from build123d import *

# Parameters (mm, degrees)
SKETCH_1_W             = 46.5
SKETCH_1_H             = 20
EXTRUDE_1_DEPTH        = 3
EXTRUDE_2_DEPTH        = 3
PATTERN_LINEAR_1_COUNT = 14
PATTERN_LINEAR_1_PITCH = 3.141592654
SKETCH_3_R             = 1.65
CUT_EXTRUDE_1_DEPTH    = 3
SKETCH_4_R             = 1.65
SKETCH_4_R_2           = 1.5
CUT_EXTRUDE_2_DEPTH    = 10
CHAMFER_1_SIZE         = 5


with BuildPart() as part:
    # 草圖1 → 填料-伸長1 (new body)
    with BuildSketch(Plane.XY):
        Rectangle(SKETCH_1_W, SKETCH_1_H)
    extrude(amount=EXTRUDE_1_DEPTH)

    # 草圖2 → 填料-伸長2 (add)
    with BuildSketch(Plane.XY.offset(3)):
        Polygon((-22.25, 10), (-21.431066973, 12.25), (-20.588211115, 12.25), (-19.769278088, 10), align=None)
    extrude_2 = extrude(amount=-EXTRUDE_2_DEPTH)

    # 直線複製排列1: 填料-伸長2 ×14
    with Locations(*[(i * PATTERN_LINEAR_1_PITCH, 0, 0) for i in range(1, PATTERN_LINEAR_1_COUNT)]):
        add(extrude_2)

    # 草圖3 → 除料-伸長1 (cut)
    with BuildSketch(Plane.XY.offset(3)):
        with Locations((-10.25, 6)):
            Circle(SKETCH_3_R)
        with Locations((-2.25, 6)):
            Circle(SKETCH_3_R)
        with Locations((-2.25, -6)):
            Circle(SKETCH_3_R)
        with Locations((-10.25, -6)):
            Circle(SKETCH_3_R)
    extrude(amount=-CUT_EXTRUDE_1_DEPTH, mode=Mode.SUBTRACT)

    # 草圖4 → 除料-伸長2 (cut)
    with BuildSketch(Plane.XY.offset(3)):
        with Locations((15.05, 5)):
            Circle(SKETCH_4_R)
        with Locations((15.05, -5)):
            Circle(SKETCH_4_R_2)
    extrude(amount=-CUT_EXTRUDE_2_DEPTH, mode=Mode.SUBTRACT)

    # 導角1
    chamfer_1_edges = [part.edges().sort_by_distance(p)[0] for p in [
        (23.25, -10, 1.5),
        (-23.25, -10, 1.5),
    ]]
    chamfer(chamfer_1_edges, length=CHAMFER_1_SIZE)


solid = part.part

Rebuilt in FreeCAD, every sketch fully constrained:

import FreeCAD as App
import Part
import Sketcher
Q = App.Units.Quantity


def edges_at(feature, points):
    """Names of the edges that pass closest to the given points."""
    edges = feature.Shape.Edges
    near = lambda p: min(range(len(edges)), key=lambda i: edges[i].distToShape(Part.Vertex(*p))[0])
    return sorted({f"Edge{near(p) + 1}" for p in points})


def add_polygon(sketch, points):
    """Adds a closed chain of lines whose ends are joined by coincident constraints."""
    first, n = sketch.GeometryCount, len(points)
    for a, b in zip(points, points[1:] + points[:1]):
        sketch.addGeometry(Part.LineSegment(App.Vector(*a, 0), App.Vector(*b, 0)), False)
    for i in range(n):
        sketch.addConstraint(Sketcher.Constraint("Coincident", first + i, 2, first + (i + 1) % n, 1))

doc = App.newDocument("Part")
body = doc.addObject("PartDesign::Body", "Body")

sketch1 = body.newObject("Sketcher::SketchObject", "Sketch")
sketch1.AttachmentSupport = (doc.getObject("XY_Plane"), [""])
sketch1.MapMode = "FlatFace"
add_polygon(sketch1, [(-23, 10), (-23, -10), (23, -10), (23, 10)])
sketch1.addConstraint([
    Sketcher.Constraint("Vertical", 0),
    Sketcher.Constraint("Horizontal", 1),
    Sketcher.Constraint("Vertical", 2),
    Sketcher.Constraint("Horizontal", 3),
    Sketcher.Constraint("Symmetric", 0, 2, 2, 2, -1, 1),
    Sketcher.Constraint("DistanceY", 0, 2, 0, 1, 20.0),
    Sketcher.Constraint("DistanceX", 1, 1, 1, 2, 46.5),
])
pad1 = body.newObject("PartDesign::Pad", "Pad")
pad1.Profile = sketch1
pad1.Length = 3

sketch2 = body.newObject("Sketcher::SketchObject", "Sketch001")
sketch2.AttachmentSupport = (doc.getObject("XY_Plane"), [""])
sketch2.MapMode = "FlatFace"
sketch2.AttachmentOffset = App.Placement(App.Vector(0, 0, 3), App.Rotation())
add_polygon(sketch2, [(-21.4, 12.2), (-22.2, 10), (-19.8, 10), (-20.6, 12.2)])
sketch2.addConstraint([
    Sketcher.Constraint("Horizontal", 1),
    Sketcher.Constraint("Horizontal", 3),
    Sketcher.Constraint("Equal", 0, 2),
    Sketcher.Constraint("Angle", 0, Q("-110 deg")),
    Sketcher.Constraint("DistanceY", -1, 1, 0, 2, 10.0),
    Sketcher.Constraint("DistanceX", 0, 2, -1, 1, 22.25),
    Sketcher.Constraint("DistanceY", -1, 1, 2, 2, 12.25),
    Sketcher.Constraint("DistanceX", 1, 1, 1, 2, 2.480722),
])
pad2 = body.newObject("PartDesign::Pad", "Pad001")
pad2.Profile = sketch2
pad2.Length = 3
pad2.Reversed = True
doc.recompute()

linearpattern = body.newObject("PartDesign::LinearPattern", "LinearPattern")
linearpattern.Originals = [pad2]
linearpattern.Direction = (doc.getObject("X_Axis"), [""])
linearpattern.Mode = "offset"
linearpattern.Offset = 3.141593
linearpattern.Occurrences = 14
body.Tip = linearpattern

sketch3 = body.newObject("Sketcher::SketchObject", "Sketch002")
sketch3.AttachmentSupport = (doc.getObject("XY_Plane"), [""])
sketch3.MapMode = "FlatFace"
sketch3.AttachmentOffset = App.Placement(App.Vector(0, 0, 3), App.Rotation())
sketch3.addGeometry([
    Part.Circle(App.Vector(-10.2, 6, 0), App.Vector(0, 0, 1), 1.6),
    Part.Circle(App.Vector(-2.2, 6, 0), App.Vector(0, 0, 1), 1.6),
    Part.Circle(App.Vector(-2.2, -6, 0), App.Vector(0, 0, 1), 1.6),
    Part.Circle(App.Vector(-10.2, -6, 0), App.Vector(0, 0, 1), 1.6),
], False)
sketch3.addConstraint([
    Sketcher.Constraint("Equal", 0, 1),
    Sketcher.Constraint("Equal", 1, 2),
    Sketcher.Constraint("Equal", 2, 3),
    Sketcher.Constraint("Symmetric", 1, 3, 2, 3, -1),
    Sketcher.Constraint("Symmetric", 0, 3, 3, 3, -1),
    Sketcher.Constraint("Horizontal", 0, 3, 1, 3),
    Sketcher.Constraint("Diameter", 0, 3.3),
    Sketcher.Constraint("DistanceY", -1, 1, 0, 3, 6.0),
    Sketcher.Constraint("DistanceX", 0, 3, 1, 3, 8.0),
    Sketcher.Constraint("DistanceX", 0, 3, -1, 1, 10.25),
])
pocket1 = body.newObject("PartDesign::Pocket", "Pocket")
pocket1.Profile = sketch3
pocket1.Length = 3

sketch4 = body.newObject("Sketcher::SketchObject", "Sketch003")
sketch4.AttachmentSupport = (doc.getObject("XY_Plane"), [""])
sketch4.MapMode = "FlatFace"
sketch4.AttachmentOffset = App.Placement(App.Vector(0, 0, 3), App.Rotation())
sketch4.addGeometry([
    Part.Circle(App.Vector(15.1, 5, 0), App.Vector(0, 0, 1), 1.6),
    Part.Circle(App.Vector(15.1, -5, 0), App.Vector(0, 0, 1), 1.5),
], False)
sketch4.addConstraint([
    Sketcher.Constraint("Symmetric", 0, 3, 1, 3, -1),
    Sketcher.Constraint("Diameter", 1, 3.0),
    Sketcher.Constraint("Diameter", 0, 3.3),
    Sketcher.Constraint("DistanceY", -1, 1, 0, 3, 5.0),
    Sketcher.Constraint("DistanceX", -1, 1, 0, 3, 15.05),
])
pocket2 = body.newObject("PartDesign::Pocket", "Pocket001")
pocket2.Profile = sketch4
pocket2.Length = 10
doc.recompute()

chamfer = body.newObject("PartDesign::Chamfer", "Chamfer")
chamfer.Base = (pocket2, edges_at(pocket2, [(23.25, -10, 1.5), (-23.25, -10, 1.5)]))
chamfer.Size = 5

doc.recompute()
